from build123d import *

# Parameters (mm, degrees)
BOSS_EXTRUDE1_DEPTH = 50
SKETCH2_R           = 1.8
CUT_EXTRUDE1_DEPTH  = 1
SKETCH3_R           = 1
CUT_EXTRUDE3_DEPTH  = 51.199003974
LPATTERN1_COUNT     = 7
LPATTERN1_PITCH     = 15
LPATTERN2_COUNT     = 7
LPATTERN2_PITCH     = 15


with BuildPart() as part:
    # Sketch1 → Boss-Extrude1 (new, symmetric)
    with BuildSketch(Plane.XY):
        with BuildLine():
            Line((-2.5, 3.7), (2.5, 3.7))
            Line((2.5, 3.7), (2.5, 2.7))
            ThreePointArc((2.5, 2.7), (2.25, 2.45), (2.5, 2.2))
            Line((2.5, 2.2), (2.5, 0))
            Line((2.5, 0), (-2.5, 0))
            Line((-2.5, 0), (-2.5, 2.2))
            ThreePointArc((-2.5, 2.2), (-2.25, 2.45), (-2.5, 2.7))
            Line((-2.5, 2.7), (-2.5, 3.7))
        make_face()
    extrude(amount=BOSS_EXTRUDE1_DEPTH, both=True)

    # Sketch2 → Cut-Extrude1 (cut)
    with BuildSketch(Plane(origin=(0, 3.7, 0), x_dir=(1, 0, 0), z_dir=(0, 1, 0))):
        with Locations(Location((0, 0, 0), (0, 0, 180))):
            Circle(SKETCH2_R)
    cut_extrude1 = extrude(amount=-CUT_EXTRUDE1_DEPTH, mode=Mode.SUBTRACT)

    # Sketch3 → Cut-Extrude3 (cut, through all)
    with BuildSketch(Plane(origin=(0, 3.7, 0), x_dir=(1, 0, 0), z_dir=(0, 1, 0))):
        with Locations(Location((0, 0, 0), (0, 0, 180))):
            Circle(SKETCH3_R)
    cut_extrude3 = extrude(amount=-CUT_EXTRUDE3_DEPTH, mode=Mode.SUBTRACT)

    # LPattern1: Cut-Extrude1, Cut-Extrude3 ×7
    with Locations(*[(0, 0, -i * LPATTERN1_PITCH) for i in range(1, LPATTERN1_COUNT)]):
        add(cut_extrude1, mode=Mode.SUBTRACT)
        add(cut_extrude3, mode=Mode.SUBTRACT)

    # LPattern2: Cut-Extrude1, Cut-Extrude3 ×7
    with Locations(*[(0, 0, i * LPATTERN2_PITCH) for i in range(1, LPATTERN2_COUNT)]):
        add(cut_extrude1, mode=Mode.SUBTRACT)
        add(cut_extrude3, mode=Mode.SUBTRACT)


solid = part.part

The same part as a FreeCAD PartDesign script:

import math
import FreeCAD as App
import Part
import Sketcher

V = App.Vector

doc = App.newDocument("Part")
body = doc.addObject("PartDesign::Body", "Body")

# Sketch on XY plane
sketch1 = doc.addObject("Sketcher::SketchObject", "Sketch")
body.addObject(sketch1)
sketch1.AttachmentSupport = (doc.XY_Plane, [""])
sketch1.MapMode = "FlatFace"
sketch1.addGeometry(Part.LineSegment(V(2.5, 3.7, 0), V(-2.5, 3.7, 0)), False)
sketch1.addGeometry(Part.LineSegment(V(-2.5, 3.7, 0), V(-2.5, 2.7, 0)), False)
sketch1.addGeometry(Part.ArcOfCircle(Part.Circle(V(-2.5, 2.45, 0), V(0, 0, 1), 0.25), math.radians(-90), math.radians(90)), False)
sketch1.addGeometry(Part.LineSegment(V(-2.5, 2.2, 0), V(-2.5, 0, 0)), False)
sketch1.addGeometry(Part.LineSegment(V(-2.5, 0, 0), V(2.5, 0, 0)), False)
sketch1.addGeometry(Part.LineSegment(V(2.5, 0, 0), V(2.5, 2.2, 0)), False)
sketch1.addGeometry(Part.ArcOfCircle(Part.Circle(V(2.5, 2.45, 0), V(0, 0, 1), 0.25), math.radians(90), math.radians(270)), False)
sketch1.addGeometry(Part.LineSegment(V(2.5, 2.7, 0), V(2.5, 3.7, 0)), False)
sketch1.addConstraint(Sketcher.Constraint("Coincident", 0, 2, 1, 1))
sketch1.addConstraint(Sketcher.Constraint("Coincident", 1, 2, 2, 2))
sketch1.addConstraint(Sketcher.Constraint("Coincident", 2, 1, 3, 1))
sketch1.addConstraint(Sketcher.Constraint("Coincident", 3, 2, 4, 1))
sketch1.addConstraint(Sketcher.Constraint("Coincident", 4, 2, 5, 1))
sketch1.addConstraint(Sketcher.Constraint("Coincident", 5, 2, 6, 2))
sketch1.addConstraint(Sketcher.Constraint("Coincident", 6, 1, 7, 1))
sketch1.addConstraint(Sketcher.Constraint("Coincident", 7, 2, 0, 1))
sketch1.addConstraint(Sketcher.Constraint("Horizontal", 0))
sketch1.addConstraint(Sketcher.Constraint("Vertical", 1))
sketch1.addConstraint(Sketcher.Constraint("Vertical", 3))
sketch1.addConstraint(Sketcher.Constraint("Horizontal", 4))
sketch1.addConstraint(Sketcher.Constraint("Vertical", 5))
sketch1.addConstraint(Sketcher.Constraint("Vertical", 7))
sketch1.addConstraint(Sketcher.Constraint("Equal", 2, 6))
sketch1.addConstraint(Sketcher.Constraint("Symmetric", 3, 2, 4, 2, -1, 1))
sketch1.addConstraint(Sketcher.Constraint("Symmetric", 2, 3, 6, 3, -2))
sketch1.addConstraint(Sketcher.Constraint("Vertical", 2, 3, 0, 2))
sketch1.addConstraint(Sketcher.Constraint("Vertical", 1, 2, 2, 1))
sketch1.addConstraint(Sketcher.Constraint("Vertical", 5, 2, 6, 1))
sketch1.addConstraint(Sketcher.Constraint("DistanceX", 0, 2, 0, 1, 5.0))
sketch1.addConstraint(Sketcher.Constraint("DistanceY", 1, 2, 1, 1, 1.0))
sketch1.addConstraint(Sketcher.Constraint("Radius", 2, 0.25))
sketch1.addConstraint(Sketcher.Constraint("DistanceY", 3, 2, 3, 1, 2.2))
pad1 = doc.addObject("PartDesign::Pad", "Pad")
body.addObject(pad1)
pad1.Profile = sketch1
pad1.Length = 100
pad1.Midplane = True

# Sketch on XZ plane
sketch2 = doc.addObject("Sketcher::SketchObject", "Sketch001")
body.addObject(sketch2)
sketch2.AttachmentSupport = (doc.XZ_Plane, [""])
sketch2.MapMode = "FlatFace"
sketch2.AttachmentOffset = App.Placement(V(0, 0, -3.7), App.Rotation())
sketch2.addGeometry(Part.Circle(V(0, 0, 0), V(0, 0, 1), 1.8), False)
sketch2.addConstraint(Sketcher.Constraint("Coincident", 0, 3, -1, 1))
sketch2.addConstraint(Sketcher.Constraint("Diameter", 0, 3.6))
pocket1 = doc.addObject("PartDesign::Pocket", "Pocket")
body.addObject(pocket1)
pocket1.Profile = sketch2
pocket1.Length = 1
pocket1.Reversed = True

# Sketch on XZ plane
sketch3 = doc.addObject("Sketcher::SketchObject", "Sketch002")
body.addObject(sketch3)
sketch3.AttachmentSupport = (doc.XZ_Plane, [""])
sketch3.MapMode = "FlatFace"
sketch3.AttachmentOffset = App.Placement(V(0, 0, -3.7), App.Rotation())
sketch3.addGeometry(Part.Circle(V(0, 0, 0), V(0, 0, 1), 1), False)
sketch3.addConstraint(Sketcher.Constraint("Coincident", 0, 3, -1, 1))
sketch3.addConstraint(Sketcher.Constraint("Diameter", 0, 2.0))
pocket2 = doc.addObject("PartDesign::Pocket", "Pocket001")
body.addObject(pocket2)
pocket2.Profile = sketch3
pocket2.Type = "ThroughAll"
pocket2.Reversed = True
doc.recompute()

linearpattern = doc.addObject("PartDesign::LinearPattern", "LinearPattern")
body.addObject(linearpattern)
linearpattern.Originals = [pocket1, pocket2]
linearpattern.Direction = (doc.Z_Axis, [""])
linearpattern.Mode = "offset"
linearpattern.Offset = 15
linearpattern.Occurrences = 7
linearpattern.Reversed = True
body.Tip = linearpattern
doc.recompute()

linearpattern2 = doc.addObject("PartDesign::LinearPattern", "LinearPattern001")
body.addObject(linearpattern2)
linearpattern2.Originals = [pocket1, pocket2]
linearpattern2.Direction = (doc.Z_Axis, [""])
linearpattern2.Mode = "offset"
linearpattern2.Offset = 15
linearpattern2.Occurrences = 7
body.Tip = linearpattern2

doc.recompute()
